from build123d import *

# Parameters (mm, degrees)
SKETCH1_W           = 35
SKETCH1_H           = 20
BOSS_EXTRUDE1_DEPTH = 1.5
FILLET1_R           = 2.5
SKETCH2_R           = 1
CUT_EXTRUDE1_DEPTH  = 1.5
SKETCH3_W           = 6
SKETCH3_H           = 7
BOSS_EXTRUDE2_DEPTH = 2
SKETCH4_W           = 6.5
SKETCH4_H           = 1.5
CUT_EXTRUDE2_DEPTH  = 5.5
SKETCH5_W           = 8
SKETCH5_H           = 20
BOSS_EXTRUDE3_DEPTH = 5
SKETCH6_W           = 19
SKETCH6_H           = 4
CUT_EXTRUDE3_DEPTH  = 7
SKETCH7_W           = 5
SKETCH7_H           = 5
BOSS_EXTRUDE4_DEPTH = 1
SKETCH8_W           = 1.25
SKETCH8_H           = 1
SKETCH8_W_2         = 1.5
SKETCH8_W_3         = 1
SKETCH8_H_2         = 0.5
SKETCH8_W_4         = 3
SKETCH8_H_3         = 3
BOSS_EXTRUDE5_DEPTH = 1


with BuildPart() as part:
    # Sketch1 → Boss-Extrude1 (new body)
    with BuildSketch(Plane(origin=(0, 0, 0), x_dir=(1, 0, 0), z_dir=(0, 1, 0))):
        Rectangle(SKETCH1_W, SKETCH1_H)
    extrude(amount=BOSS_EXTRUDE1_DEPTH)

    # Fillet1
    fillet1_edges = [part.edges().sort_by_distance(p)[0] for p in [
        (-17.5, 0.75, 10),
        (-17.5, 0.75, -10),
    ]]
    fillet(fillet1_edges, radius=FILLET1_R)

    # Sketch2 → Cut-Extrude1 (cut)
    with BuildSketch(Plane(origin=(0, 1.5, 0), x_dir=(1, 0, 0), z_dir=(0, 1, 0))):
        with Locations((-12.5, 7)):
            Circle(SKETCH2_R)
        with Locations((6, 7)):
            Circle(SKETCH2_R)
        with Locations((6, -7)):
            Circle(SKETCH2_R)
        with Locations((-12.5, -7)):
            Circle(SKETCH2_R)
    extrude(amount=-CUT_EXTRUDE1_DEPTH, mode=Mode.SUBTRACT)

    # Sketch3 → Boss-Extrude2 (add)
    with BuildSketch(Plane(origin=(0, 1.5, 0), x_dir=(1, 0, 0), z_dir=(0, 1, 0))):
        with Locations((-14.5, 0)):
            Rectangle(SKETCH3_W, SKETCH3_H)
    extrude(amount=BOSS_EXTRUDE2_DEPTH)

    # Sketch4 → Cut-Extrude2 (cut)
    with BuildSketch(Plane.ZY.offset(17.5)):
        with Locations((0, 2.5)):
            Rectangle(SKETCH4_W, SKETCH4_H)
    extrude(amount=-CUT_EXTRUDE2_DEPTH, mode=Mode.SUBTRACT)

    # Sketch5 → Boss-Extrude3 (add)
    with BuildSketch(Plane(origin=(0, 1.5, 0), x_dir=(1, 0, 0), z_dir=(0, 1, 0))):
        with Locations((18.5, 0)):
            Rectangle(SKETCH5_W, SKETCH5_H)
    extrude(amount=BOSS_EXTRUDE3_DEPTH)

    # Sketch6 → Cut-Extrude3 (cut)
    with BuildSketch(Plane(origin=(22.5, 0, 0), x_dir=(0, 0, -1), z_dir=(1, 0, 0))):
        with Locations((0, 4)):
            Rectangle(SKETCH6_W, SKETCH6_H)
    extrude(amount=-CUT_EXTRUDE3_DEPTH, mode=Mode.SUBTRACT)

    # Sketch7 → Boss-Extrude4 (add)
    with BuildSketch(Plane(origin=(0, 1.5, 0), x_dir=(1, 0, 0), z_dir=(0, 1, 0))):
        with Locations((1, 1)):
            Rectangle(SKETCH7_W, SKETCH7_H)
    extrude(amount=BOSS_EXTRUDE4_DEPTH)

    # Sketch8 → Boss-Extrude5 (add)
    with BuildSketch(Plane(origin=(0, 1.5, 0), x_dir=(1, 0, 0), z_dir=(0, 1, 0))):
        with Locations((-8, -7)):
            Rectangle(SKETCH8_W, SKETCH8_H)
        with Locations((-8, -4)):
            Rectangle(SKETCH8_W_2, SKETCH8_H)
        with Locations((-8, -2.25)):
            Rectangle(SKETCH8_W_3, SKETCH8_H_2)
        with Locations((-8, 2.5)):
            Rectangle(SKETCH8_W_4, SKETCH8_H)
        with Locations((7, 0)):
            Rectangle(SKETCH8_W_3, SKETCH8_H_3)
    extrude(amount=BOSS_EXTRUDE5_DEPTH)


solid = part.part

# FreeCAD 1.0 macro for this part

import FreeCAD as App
import Part
import Sketcher


def edges_at(feature, points):
    """Names of the edges that pass closest to the given points."""
    edges = feature.Shape.Edges
    near = lambda p: min(range(len(edges)), key=lambda i: edges[i].distToShape(Part.Vertex(*p))[0])
    return sorted({f"Edge{near(p) + 1}" for p in points})


def add_polygon(sketch, points):
    """Adds a closed chain of lines whose ends are joined by coincident constraints."""
    first, n = sketch.GeometryCount, len(points)
    for a, b in zip(points, points[1:] + points[:1]):
        sketch.addGeometry(Part.LineSegment(App.Vector(*a, 0), App.Vector(*b, 0)), False)
    for i in range(n):
        sketch.addConstraint(Sketcher.Constraint("Coincident", first + i, 2, first + (i + 1) % n, 1))

doc = App.newDocument("Part")
body = doc.addObject("PartDesign::Body", "Body")

sketch1 = body.newObject("Sketcher::SketchObject", "Sketch")
sketch1.AttachmentSupport = (doc.getObject("XZ_Plane"), [""])
sketch1.MapMode = "FlatFace"
add_polygon(sketch1, [(-17.5, -10), (-17.5, 10), (17.5, 10), (17.5, -10)])
sketch1.addConstraint([
    Sketcher.Constraint("Vertical", 0),
    Sketcher.Constraint("Horizontal", 1),
    Sketcher.Constraint("Vertical", 2),
    Sketcher.Constraint("Horizontal", 3),
    Sketcher.Constraint("Symmetric", 0, 2, 2, 2, -1, 1),
    Sketcher.Constraint("DistanceX", 1, 1, 1, 2, 35.0),
    Sketcher.Constraint("DistanceY", 0, 1, 0, 2, 20.0),
])
pad1 = body.newObject("PartDesign::Pad", "Pad")
pad1.Profile = sketch1
pad1.Length = 1.5
pad1.Reversed = True
doc.recompute()

fillet = body.newObject("PartDesign::Fillet", "Fillet")
fillet.Base = (pad1, edges_at(pad1, [(-17.5, 0.75, 10), (-17.5, 0.75, -10)]))
fillet.Radius = 2.5

sketch2 = body.newObject("Sketcher::SketchObject", "Sketch001")
sketch2.AttachmentSupport = (doc.getObject("XZ_Plane"), [""])
sketch2.MapMode = "FlatFace"
sketch2.AttachmentOffset = App.Placement(App.Vector(0, 0, -1.5), App.Rotation())
sketch2.addGeometry([
    Part.Circle(App.Vector(-12.5, -7, 0), App.Vector(0, 0, 1), 1),
    Part.Circle(App.Vector(6, -7, 0), App.Vector(0, 0, 1), 1),
    Part.Circle(App.Vector(6, 7, 0), App.Vector(0, 0, 1), 1),
    Part.Circle(App.Vector(-12.5, 7, 0), App.Vector(0, 0, 1), 1),
], False)
sketch2.addConstraint([
    Sketcher.Constraint("Equal", 0, 1),
    Sketcher.Constraint("Equal", 1, 2),
    Sketcher.Constraint("Equal", 2, 3),
    Sketcher.Constraint("Symmetric", 1, 3, 2, 3, -1),
    Sketcher.Constraint("Symmetric", 0, 3, 3, 3, -1),
    Sketcher.Constraint("Horizontal", 0, 3, 1, 3),
    Sketcher.Constraint("Diameter", 0, 2.0),
    Sketcher.Constraint("DistanceY", 0, 3, -1, 1, 7.0),
    Sketcher.Constraint("DistanceX", -1, 1, 1, 3, 6.0),
    Sketcher.Constraint("DistanceX", 0, 3, -1, 1, 12.5),
])
pocket1 = body.newObject("PartDesign::Pocket", "Pocket")
pocket1.Profile = sketch2
pocket1.Length = 1.5
pocket1.Reversed = True

sketch3 = body.newObject("Sketcher::SketchObject", "Sketch002")
sketch3.AttachmentSupport = (doc.getObject("XZ_Plane"), [""])
sketch3.MapMode = "FlatFace"
sketch3.AttachmentOffset = App.Placement(App.Vector(0, 0, -1.5), App.Rotation())
add_polygon(sketch3, [(-17.5, -3.5), (-17.5, 3.5), (-11.5, 3.5), (-11.5, -3.5)])
sketch3.addConstraint([
    Sketcher.Constraint("Vertical", 0),
    Sketcher.Constraint("Horizontal", 1),
    Sketcher.Constraint("Vertical", 2),
    Sketcher.Constraint("Horizontal", 3),
    Sketcher.Constraint("DistanceX", 1, 1, 1, 2, 6.0),
    Sketcher.Constraint("DistanceY", 0, 1, 0, 2, 7.0),
    Sketcher.Constraint("DistanceX", 0, 2, -1, 1, 17.5),
    Sketcher.Constraint("DistanceY", -1, 1, 0, 2, 3.5),
])
pad2 = body.newObject("PartDesign::Pad", "Pad001")
pad2.Profile = sketch3
pad2.Length = 2
pad2.Reversed = True

sketch4 = body.newObject("Sketcher::SketchObject", "Sketch003")
sketch4.AttachmentSupport = (doc.getObject("YZ_Plane"), [""])
sketch4.MapMode = "FlatFace"
sketch4.AttachmentOffset = App.Placement(App.Vector(0, 0, -17.5), App.Rotation())
add_polygon(sketch4, [(3.25, -3.25), (1.75, -3.25), (1.75, 3.25), (3.25, 3.25)])
sketch4.addConstraint([
    Sketcher.Constraint("Horizontal", 0),
    Sketcher.Constraint("Vertical", 1),
    Sketcher.Constraint("Horizontal", 2),
    Sketcher.Constraint("Vertical", 3),
    Sketcher.Constraint("DistanceX", 0, 2, 0, 1, 1.5),
    Sketcher.Constraint("DistanceY", 1, 1, 1, 2, 6.5),
    Sketcher.Constraint("DistanceX", -1, 1, 0, 2, 1.75),
    Sketcher.Constraint("DistanceY", 0, 2, -1, 1, 3.25),
])
pocket2 = body.newObject("PartDesign::Pocket", "Pocket001")
pocket2.Profile = sketch4
pocket2.Length = 5.5
pocket2.Reversed = True

sketch5 = body.newObject("Sketcher::SketchObject", "Sketch004")
sketch5.AttachmentSupport = (doc.getObject("XZ_Plane"), [""])
sketch5.MapMode = "FlatFace"
sketch5.AttachmentOffset = App.Placement(App.Vector(0, 0, -1.5), App.Rotation())
add_polygon(sketch5, [(14.5, -10), (14.5, 10), (22.5, 10), (22.5, -10)])
sketch5.addConstraint([
    Sketcher.Constraint("Vertical", 0),
    Sketcher.Constraint("Horizontal", 1),
    Sketcher.Constraint("Vertical", 2),
    Sketcher.Constraint("Horizontal", 3),
    Sketcher.Constraint("DistanceX", 1, 1, 1, 2, 8.0),
    Sketcher.Constraint("DistanceY", 0, 1, 0, 2, 20.0),
    Sketcher.Constraint("DistanceY", -1, 1, 0, 2, 10.0),
    Sketcher.Constraint("DistanceX", -1, 1, 0, 2, 14.5),
])
pad3 = body.newObject("PartDesign::Pad", "Pad002")
pad3.Profile = sketch5
pad3.Length = 5
pad3.Reversed = True

sketch6 = body.newObject("Sketcher::SketchObject", "Sketch005")
sketch6.AttachmentSupport = (doc.getObject("YZ_Plane"), [""])
sketch6.MapMode = "FlatFace"
sketch6.AttachmentOffset = App.Placement(App.Vector(0, 0, 22.5), App.Rotation())
add_polygon(sketch6, [(6, 9.5), (2, 9.5), (2, -9.5), (6, -9.5)])
sketch6.addConstraint([
    Sketcher.Constraint("Horizontal", 0),
    Sketcher.Constraint("Vertical", 1),
    Sketcher.Constraint("Horizontal", 2),
    Sketcher.Constraint("Vertical", 3),
    Sketcher.Constraint("DistanceX", 0, 2, 0, 1, 4.0),
    Sketcher.Constraint("DistanceY", 1, 2, 1, 1, 19.0),
    Sketcher.Constraint("DistanceX", -1, 1, 0, 2, 2.0),
    Sketcher.Constraint("DistanceY", -1, 1, 0, 2, 9.5),
])
pocket3 = body.newObject("PartDesign::Pocket", "Pocket002")
pocket3.Profile = sketch6
pocket3.Length = 7

sketch7 = body.newObject("Sketcher::SketchObject", "Sketch006")
sketch7.AttachmentSupport = (doc.getObject("XZ_Plane"), [""])
sketch7.MapMode = "FlatFace"
sketch7.AttachmentOffset = App.Placement(App.Vector(0, 0, -1.5), App.Rotation())
add_polygon(sketch7, [(-1.5, -3.5), (-1.5, 1.5), (3.5, 1.5), (3.5, -3.5)])
sketch7.addConstraint([
    Sketcher.Constraint("Vertical", 0),
    Sketcher.Constraint("Horizontal", 1),
    Sketcher.Constraint("Vertical", 2),
    Sketcher.Constraint("Horizontal", 3),
    Sketcher.Constraint("Equal", 3, 0),
    Sketcher.Constraint("DistanceX", 1, 1, 1, 2, 5.0),
    Sketcher.Constraint("DistanceX", 0, 2, -1, 1, 1.5),
    Sketcher.Constraint("DistanceY", -1, 1, 0, 2, 1.5),
])
pad4 = body.newObject("PartDesign::Pad", "Pad003")
pad4.Profile = sketch7
pad4.Length = 1
pad4.Reversed = True

sketch8 = body.newObject("Sketcher::SketchObject", "Sketch007")
sketch8.AttachmentSupport = (doc.getObject("XZ_Plane"), [""])
sketch8.MapMode = "FlatFace"
sketch8.AttachmentOffset = App.Placement(App.Vector(0, 0, -1.5), App.Rotation())
add_polygon(sketch8, [(-8.625, 6.5), (-8.625, 7.5), (-7.375, 7.5), (-7.375, 6.5)])
add_polygon(sketch8, [(-8.75, 3.5), (-8.75, 4.5), (-7.25, 4.5), (-7.25, 3.5)])
add_polygon(sketch8, [(-8.5, 2), (-8.5, 2.5), (-7.5, 2.5), (-7.5, 2)])
add_polygon(sketch8, [(-9.5, -3), (-9.5, -2), (-6.5, -2), (-6.5, -3)])
add_polygon(sketch8, [(6.5, -1.5), (6.5, 1.5), (7.5, 1.5), (7.5, -1.5)])
sketch8.addConstraint([
    Sketcher.Constraint("Vertical", 0),
    Sketcher.Constraint("Horizontal", 1),
    Sketcher.Constraint("Vertical", 2),
    Sketcher.Constraint("Horizontal", 3),
    Sketcher.Constraint("Vertical", 4),
    Sketcher.Constraint("Horizontal", 5),
    Sketcher.Constraint("Vertical", 6),
    Sketcher.Constraint("Horizontal", 7),
    Sketcher.Constraint("Vertical", 8),
    Sketcher.Constraint("Horizontal", 9),
    Sketcher.Constraint("Vertical", 10),
    Sketcher.Constraint("Horizontal", 11),
    Sketcher.Constraint("Vertical", 12),
    Sketcher.Constraint("Horizontal", 13),
    Sketcher.Constraint("Vertical", 14),
    Sketcher.Constraint("Horizontal", 15),
    Sketcher.Constraint("Vertical", 16),
    Sketcher.Constraint("Horizontal", 17),
    Sketcher.Constraint("Vertical", 18),
    Sketcher.Constraint("Horizontal", 19),
    Sketcher.Constraint("Equal", 11, 17),
    Sketcher.Constraint("Equal", 19, 0),
    Sketcher.Constraint("Equal", 2, 4),
    Sketcher.Constraint("Equal", 6, 12),
    Sketcher.Constraint("Equal", 15, 16),
    Sketcher.Constraint("DistanceX", 9, 1, 9, 2, 1.0),
    Sketcher.Constraint("DistanceX", 13, 1, 13, 2, 3.0),
    Sketcher.Constraint("DistanceX", 5, 1, 5, 2, 1.5),
    Sketcher.Constraint("DistanceY", 8, 1, 8, 2, 0.5),
    Sketcher.Constraint("DistanceY", -1, 1, 10, 2, 2.0),
    Sketcher.Constraint("DistanceY", 12, 2, -1, 1, 2.0),
    Sketcher.Constraint("DistanceY", 4, 2, 3, 2, 2.0),
    Sketcher.Constraint("DistanceY", 8, 2, 7, 2, 1.0),
    Sketcher.Constraint("DistanceX", 12, 2, 11, 2, 1.0),
    Sketcher.Constraint("DistanceX", 13, 2, 16, 2, 13.0),
    Sketcher.Constraint("DistanceY", 16, 2, 6, 2, 2.0),
    Sketcher.Constraint("DistanceX", 1, 1, 1, 2, 1.25),
    Sketcher.Constraint("DistanceX", 8, 2, -1, 1, 8.5),
    Sketcher.Constraint("DistanceX", 4, 2, -1, 1, 8.75),
    Sketcher.Constraint("DistanceX", 0, 2, -1, 1, 8.625),
])
pad5 = body.newObject("PartDesign::Pad", "Pad004")
pad5.Profile = sketch8
pad5.Length = 1
pad5.Reversed = True

doc.recompute()
